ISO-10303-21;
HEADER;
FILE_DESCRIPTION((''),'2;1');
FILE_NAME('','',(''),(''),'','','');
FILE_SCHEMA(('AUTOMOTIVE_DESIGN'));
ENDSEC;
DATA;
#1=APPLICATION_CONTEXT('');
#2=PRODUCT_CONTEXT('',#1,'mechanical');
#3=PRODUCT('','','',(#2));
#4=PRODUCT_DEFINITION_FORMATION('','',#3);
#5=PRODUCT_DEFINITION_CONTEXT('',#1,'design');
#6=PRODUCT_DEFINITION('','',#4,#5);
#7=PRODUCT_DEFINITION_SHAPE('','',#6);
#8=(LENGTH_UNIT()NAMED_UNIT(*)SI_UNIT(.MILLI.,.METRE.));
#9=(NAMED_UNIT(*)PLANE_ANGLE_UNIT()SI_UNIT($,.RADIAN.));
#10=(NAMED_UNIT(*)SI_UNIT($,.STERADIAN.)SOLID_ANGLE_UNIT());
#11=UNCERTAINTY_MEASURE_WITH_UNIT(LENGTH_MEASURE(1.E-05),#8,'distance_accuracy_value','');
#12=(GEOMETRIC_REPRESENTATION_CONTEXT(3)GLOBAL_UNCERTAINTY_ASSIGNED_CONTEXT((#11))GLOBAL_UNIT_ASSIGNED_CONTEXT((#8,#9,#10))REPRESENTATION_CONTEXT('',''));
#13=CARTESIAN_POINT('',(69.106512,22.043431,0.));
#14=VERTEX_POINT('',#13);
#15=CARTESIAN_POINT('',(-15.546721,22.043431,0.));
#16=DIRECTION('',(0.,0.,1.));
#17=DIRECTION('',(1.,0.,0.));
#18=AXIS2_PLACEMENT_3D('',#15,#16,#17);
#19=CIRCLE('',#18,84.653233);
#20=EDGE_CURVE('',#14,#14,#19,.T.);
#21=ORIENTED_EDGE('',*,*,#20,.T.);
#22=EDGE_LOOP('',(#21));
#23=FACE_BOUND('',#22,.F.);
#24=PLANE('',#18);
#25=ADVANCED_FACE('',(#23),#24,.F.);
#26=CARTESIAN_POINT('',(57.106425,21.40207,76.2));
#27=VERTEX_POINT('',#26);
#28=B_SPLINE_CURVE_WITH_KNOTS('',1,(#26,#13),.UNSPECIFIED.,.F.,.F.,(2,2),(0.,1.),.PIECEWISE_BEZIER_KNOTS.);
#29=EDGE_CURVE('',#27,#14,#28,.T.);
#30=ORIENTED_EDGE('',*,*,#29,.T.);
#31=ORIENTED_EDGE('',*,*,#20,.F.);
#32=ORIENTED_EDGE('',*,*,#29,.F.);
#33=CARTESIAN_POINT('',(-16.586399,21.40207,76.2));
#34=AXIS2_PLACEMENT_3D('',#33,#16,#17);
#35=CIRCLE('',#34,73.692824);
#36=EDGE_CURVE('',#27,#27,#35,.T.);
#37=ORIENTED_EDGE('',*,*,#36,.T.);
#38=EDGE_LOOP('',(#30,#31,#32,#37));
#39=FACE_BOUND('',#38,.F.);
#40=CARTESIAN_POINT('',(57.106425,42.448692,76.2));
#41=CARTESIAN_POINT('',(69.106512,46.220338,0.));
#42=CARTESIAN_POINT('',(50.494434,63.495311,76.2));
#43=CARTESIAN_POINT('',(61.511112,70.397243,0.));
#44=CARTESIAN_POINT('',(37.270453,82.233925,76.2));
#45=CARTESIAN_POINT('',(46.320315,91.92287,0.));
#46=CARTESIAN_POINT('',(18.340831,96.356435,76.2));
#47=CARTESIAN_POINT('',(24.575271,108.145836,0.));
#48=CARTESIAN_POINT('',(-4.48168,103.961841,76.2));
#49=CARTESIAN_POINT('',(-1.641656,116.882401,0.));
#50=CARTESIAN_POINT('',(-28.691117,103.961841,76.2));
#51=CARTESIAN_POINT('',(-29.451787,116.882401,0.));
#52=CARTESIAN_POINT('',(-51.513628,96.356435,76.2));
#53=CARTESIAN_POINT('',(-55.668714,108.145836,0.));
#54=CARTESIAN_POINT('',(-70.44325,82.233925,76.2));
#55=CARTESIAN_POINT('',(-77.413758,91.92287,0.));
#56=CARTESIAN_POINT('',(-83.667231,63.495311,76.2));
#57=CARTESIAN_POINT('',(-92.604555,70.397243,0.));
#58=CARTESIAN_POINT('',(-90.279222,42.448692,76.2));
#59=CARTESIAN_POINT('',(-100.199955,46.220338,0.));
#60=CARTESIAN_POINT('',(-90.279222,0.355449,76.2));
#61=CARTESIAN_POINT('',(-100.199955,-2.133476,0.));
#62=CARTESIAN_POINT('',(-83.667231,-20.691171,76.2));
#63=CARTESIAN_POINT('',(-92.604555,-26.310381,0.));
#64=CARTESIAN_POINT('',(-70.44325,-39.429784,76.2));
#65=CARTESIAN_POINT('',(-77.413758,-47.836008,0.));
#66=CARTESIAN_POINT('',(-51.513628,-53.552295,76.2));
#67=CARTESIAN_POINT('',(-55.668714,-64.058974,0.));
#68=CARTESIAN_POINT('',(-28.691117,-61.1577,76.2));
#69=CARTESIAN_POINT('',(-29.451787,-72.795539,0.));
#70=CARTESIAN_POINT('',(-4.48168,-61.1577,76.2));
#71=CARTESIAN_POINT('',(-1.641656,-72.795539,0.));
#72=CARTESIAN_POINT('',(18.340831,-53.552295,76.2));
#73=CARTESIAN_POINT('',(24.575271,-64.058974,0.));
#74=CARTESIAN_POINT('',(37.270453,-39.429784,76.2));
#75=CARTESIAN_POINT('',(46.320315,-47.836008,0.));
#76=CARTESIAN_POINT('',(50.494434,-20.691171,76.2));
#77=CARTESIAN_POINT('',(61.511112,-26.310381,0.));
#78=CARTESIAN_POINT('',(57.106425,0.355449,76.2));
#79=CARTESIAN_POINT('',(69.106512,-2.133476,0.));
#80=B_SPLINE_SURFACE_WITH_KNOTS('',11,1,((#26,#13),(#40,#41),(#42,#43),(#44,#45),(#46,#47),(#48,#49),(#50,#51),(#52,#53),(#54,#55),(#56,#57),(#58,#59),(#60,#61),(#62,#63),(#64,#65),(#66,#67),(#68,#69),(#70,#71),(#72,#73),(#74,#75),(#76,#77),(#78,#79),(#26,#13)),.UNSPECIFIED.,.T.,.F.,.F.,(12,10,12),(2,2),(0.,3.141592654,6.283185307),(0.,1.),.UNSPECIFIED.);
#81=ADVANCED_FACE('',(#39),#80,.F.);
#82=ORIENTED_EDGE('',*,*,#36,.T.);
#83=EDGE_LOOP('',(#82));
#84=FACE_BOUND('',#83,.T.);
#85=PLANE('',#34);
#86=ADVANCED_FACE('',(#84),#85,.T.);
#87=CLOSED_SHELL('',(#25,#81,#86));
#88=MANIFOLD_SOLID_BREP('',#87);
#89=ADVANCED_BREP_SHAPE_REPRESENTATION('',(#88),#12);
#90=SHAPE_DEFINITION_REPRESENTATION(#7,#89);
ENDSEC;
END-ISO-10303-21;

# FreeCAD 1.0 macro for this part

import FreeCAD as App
import Part
import Sketcher

V = App.Vector

doc = App.newDocument("Part")
body = doc.addObject("PartDesign::Body", "Body")

# Sketch on XY plane
sketch1 = body.newObject("Sketcher::SketchObject", "Sketch")
sketch1.AttachmentSupport = (doc.getObject("XY_Plane"), [""])
sketch1.MapMode = "FlatFace"
sketch1.AttachmentOffset = App.Placement(V(0, 0, 76.2), App.Rotation())
sketch1.addGeometry(Part.Circle(V(-17, 21, 0), V(0, 0, 1), 74), False)
sketch1.addConstraint(Sketcher.Constraint("Diameter", 0, 147.385648))
sketch1.addConstraint(Sketcher.Constraint("DistanceX", 0, 3, -1, 1, 16.586399))
sketch1.addConstraint(Sketcher.Constraint("DistanceY", -1, 1, 0, 3, 21.40207))

# Sketch on XY plane
sketch2 = body.newObject("Sketcher::SketchObject", "Sketch001")
sketch2.AttachmentSupport = (doc.getObject("XY_Plane"), [""])
sketch2.MapMode = "FlatFace"
sketch2.addGeometry(Part.Circle(V(-16, 22, 0), V(0, 0, 1), 85), False)
sketch2.addConstraint(Sketcher.Constraint("Diameter", 0, 169.306467))
sketch2.addConstraint(Sketcher.Constraint("DistanceX", 0, 3, -1, 1, 15.546721))
sketch2.addConstraint(Sketcher.Constraint("DistanceY", -1, 1, 0, 3, 22.043431))

additiveloft = body.newObject("PartDesign::AdditiveLoft", "AdditiveLoft")
additiveloft.Profile = sketch1
additiveloft.Sections = [sketch2]

doc.recompute()
